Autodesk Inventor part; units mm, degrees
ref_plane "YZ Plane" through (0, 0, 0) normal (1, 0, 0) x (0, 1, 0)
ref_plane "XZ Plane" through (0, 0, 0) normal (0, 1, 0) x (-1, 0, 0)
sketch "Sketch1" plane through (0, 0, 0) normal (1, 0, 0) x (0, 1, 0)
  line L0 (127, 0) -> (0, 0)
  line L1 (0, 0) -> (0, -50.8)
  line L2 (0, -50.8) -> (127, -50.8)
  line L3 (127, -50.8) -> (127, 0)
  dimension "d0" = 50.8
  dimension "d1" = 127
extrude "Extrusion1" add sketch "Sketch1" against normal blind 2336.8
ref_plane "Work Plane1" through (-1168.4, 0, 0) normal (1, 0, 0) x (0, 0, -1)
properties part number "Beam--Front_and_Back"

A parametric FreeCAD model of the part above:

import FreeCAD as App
import Part
import Sketcher
Q = App.Units.Quantity


def add_polygon(sketch, points):
    """Adds a closed chain of lines whose ends are joined by coincident constraints."""
    first, n = sketch.GeometryCount, len(points)
    for a, b in zip(points, points[1:] + points[:1]):
        sketch.addGeometry(Part.LineSegment(App.Vector(*a, 0), App.Vector(*b, 0)), False)
    for i in range(n):
        sketch.addConstraint(Sketcher.Constraint("Coincident", first + i, 2, first + (i + 1) % n, 1))

doc = App.newDocument("Part")
params = doc.addObject("Spreadsheet::Sheet", "Params")
for row, (alias, value) in enumerate([
    ("sketch1_width", "5 in"),
    ("sketch1_height", "2 in"),
    ("pad1_length", "92 in"),
], start=1):
    params.set(f"A{row}", alias)
    params.set(f"B{row}", "=" + value)
    params.setAlias(f"B{row}", alias)

body = doc.addObject("PartDesign::Body", "Body")

# Sketch on YZ plane
sketch1 = body.newObject("Sketcher::SketchObject", "Sketch")
sketch1.AttachmentSupport = (doc.getObject("YZ_Plane"), [""])
sketch1.MapMode = "FlatFace"
add_polygon(sketch1, [(127, -51), (127, 0), (0, 0), (0, -51)])  # lines 0-3
sketch1.addConstraint([
    Sketcher.Constraint("Vertical", 0),
    Sketcher.Constraint("Horizontal", 1),
    Sketcher.Constraint("Vertical", 2),
    Sketcher.Constraint("Horizontal", 3),
    Sketcher.Constraint("Coincident", 1, 2, -1, 1),
    Sketcher.Constraint("DistanceX", 1, 2, 1, 1, Q("5 in")),
    Sketcher.Constraint("DistanceY", 0, 1, 0, 2, Q("2 in")),
])
sketch1.setExpression("Constraints[9]", "Params.sketch1_width")
sketch1.setExpression("Constraints[10]", "Params.sketch1_height")
pad1 = body.newObject("PartDesign::Pad", "Pad")
pad1.Profile = sketch1
pad1.setExpression("Length", "Params.pad1_length")
pad1.Reversed = True

doc.recompute()
